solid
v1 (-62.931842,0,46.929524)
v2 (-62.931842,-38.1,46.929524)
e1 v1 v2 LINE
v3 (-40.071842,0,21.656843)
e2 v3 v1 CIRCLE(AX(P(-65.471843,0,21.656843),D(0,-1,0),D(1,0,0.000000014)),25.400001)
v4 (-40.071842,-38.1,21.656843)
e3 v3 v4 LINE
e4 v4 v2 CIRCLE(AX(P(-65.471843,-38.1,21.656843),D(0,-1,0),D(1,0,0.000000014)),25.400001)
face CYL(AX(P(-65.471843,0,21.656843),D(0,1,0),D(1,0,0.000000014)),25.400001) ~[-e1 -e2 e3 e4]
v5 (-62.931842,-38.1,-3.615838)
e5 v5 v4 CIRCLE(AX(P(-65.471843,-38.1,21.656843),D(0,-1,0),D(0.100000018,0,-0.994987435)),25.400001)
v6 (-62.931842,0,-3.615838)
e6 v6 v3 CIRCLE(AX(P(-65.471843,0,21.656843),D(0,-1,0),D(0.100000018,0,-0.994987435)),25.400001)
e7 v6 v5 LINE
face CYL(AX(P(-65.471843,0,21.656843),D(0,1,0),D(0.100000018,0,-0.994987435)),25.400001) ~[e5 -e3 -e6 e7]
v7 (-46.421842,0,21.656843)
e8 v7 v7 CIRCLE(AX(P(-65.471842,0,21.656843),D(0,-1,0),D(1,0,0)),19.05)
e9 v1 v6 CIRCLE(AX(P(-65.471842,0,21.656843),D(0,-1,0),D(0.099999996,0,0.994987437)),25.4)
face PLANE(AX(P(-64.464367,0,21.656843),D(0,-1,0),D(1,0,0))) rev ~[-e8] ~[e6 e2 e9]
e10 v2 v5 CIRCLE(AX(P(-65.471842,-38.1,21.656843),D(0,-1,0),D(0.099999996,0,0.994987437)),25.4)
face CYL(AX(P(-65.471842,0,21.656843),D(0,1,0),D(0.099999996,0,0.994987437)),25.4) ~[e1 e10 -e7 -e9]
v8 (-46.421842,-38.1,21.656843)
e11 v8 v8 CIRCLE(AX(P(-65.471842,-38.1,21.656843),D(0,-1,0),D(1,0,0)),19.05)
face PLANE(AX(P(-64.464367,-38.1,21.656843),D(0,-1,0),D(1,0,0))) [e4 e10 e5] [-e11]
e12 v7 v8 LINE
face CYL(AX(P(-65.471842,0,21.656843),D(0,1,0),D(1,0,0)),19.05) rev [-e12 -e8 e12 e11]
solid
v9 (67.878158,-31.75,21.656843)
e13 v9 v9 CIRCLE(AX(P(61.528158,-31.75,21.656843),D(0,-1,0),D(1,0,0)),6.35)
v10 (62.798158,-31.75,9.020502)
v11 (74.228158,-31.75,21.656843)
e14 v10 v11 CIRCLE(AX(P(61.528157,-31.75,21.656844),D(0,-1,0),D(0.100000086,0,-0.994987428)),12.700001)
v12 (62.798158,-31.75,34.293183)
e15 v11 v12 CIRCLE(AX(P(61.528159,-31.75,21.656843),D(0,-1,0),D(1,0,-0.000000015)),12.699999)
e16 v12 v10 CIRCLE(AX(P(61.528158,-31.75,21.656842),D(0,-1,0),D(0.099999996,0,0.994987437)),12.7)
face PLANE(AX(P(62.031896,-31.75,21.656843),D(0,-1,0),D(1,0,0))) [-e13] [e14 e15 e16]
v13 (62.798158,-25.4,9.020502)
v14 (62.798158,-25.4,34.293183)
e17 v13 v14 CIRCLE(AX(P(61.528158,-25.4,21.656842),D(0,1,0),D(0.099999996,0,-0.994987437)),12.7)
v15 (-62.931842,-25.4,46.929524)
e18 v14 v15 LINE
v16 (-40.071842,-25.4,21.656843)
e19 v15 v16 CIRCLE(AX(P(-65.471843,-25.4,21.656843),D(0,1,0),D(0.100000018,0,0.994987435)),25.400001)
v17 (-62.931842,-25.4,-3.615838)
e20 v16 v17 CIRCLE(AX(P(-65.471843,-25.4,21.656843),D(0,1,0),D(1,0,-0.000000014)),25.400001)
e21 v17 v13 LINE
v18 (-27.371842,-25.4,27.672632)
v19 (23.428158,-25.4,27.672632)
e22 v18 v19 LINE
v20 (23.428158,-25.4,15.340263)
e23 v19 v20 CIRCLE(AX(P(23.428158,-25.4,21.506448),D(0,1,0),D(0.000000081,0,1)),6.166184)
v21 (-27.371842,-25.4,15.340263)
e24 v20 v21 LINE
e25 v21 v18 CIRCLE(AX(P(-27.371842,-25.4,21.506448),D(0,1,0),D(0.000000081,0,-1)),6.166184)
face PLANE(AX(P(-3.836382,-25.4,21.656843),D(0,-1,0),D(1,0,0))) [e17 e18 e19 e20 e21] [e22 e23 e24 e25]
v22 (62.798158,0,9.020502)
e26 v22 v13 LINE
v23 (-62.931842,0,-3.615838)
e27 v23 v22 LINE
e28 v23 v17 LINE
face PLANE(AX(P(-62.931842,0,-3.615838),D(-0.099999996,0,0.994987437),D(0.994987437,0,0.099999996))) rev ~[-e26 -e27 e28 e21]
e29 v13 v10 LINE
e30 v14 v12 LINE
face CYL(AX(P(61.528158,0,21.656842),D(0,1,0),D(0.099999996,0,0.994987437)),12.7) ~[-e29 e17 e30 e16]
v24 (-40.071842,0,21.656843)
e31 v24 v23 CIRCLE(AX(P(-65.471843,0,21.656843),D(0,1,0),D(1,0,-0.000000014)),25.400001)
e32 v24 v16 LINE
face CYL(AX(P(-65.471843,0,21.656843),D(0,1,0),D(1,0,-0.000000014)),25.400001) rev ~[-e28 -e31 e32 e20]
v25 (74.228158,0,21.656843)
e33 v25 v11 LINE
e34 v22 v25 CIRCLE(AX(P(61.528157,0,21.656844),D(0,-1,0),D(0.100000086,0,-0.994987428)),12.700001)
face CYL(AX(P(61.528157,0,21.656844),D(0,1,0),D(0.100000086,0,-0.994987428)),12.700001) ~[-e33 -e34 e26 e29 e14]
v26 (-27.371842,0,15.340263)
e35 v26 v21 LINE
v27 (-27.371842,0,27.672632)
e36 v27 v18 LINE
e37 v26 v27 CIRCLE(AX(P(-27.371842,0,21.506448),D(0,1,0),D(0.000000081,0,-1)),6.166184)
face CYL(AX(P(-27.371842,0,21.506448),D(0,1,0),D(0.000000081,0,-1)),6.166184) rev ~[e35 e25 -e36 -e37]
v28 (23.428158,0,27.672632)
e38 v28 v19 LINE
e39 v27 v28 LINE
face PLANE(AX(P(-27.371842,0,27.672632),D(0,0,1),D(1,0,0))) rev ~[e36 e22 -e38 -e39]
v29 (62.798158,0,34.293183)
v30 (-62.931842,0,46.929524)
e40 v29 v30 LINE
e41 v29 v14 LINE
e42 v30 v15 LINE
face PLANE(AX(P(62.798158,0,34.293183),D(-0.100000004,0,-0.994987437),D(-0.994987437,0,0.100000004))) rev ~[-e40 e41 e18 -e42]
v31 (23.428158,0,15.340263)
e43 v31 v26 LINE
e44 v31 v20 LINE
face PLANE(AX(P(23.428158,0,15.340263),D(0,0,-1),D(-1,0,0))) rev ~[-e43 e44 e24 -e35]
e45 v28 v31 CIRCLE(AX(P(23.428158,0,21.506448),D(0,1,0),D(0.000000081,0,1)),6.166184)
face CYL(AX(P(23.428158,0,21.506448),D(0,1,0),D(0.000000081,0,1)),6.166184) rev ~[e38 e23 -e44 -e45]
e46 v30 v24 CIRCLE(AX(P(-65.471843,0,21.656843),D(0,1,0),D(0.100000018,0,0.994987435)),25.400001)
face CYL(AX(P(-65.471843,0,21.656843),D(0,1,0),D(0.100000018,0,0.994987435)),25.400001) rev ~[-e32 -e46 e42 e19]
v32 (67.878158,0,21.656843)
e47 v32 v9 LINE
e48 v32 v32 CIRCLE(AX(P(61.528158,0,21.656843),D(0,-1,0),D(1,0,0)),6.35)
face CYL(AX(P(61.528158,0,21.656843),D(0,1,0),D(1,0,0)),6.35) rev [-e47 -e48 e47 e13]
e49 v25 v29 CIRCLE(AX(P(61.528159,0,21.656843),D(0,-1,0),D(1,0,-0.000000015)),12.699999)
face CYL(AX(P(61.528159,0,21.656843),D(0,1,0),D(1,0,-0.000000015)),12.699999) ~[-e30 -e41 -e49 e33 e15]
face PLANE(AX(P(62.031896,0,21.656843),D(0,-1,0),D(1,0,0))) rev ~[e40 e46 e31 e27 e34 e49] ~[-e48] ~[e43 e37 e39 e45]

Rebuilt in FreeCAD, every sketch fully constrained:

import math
import FreeCAD as App
import Part
import Sketcher
from FreeCAD import Vector
Q = App.Units.Quantity

doc = App.newDocument("Part")
body = doc.addObject("PartDesign::Body", "Body")

# Sketch on XZ plane
sketch1 = body.newObject("Sketcher::SketchObject", "Sketch")
sketch1.AttachmentSupport = (doc.getObject("XZ_Plane"), [""])
sketch1.MapMode = "FlatFace"
sketch1.addGeometry([
    Part.ArcOfCircle(Part.Circle(Vector(-65, 22, 0), Vector(0, 0, 1), 25), math.radians(-84), math.radians(0)),
    Part.ArcOfCircle(Part.Circle(Vector(-65, 22, 0), Vector(0, 0, 1), 25), math.radians(0), math.radians(84)),
    Part.ArcOfCircle(Part.Circle(Vector(-65, 22, 0), Vector(0, 0, 1), 25), math.radians(84), math.radians(276)),
    Part.Circle(Vector(-65, 22, 0), Vector(0, 0, 1), 19),
], False)
sketch1.addConstraint([
    Sketcher.Constraint("Tangent", 0, 2, 1, 1),
    Sketcher.Constraint("Tangent", 1, 2, 2, 1),
    Sketcher.Constraint("Tangent", 2, 2, 0, 1),
    Sketcher.Constraint("Coincident", 3, 3, 0, 3),
    Sketcher.Constraint("Horizontal", 3, 3, 0, 2),
    Sketcher.Constraint("Vertical", 1, 2, 2, 2),
    Sketcher.Constraint("Radius", 0, Q("1 in")),
    Sketcher.Constraint("Diameter", 3, Q("1.5 in")),
    Sketcher.Constraint("DistanceX", 0, 3, 1, 2, Q("0.1 in")),
    Sketcher.Constraint("DistanceX", 2, 3, -1, 1, 65.471842),
    Sketcher.Constraint("DistanceY", -1, 1, 0, 3, 21.656843),
])
pad1 = body.newObject("PartDesign::Pad", "Pad")
pad1.Profile = sketch1
pad1.Length = Q("1.5 in")
body2 = doc.addObject("PartDesign::Body", "Body001")

# Sketch on XZ plane
sketch2 = body2.newObject("Sketcher::SketchObject", "Sketch001")
sketch2.AttachmentSupport = (doc.getObject("XZ_Plane001"), [""])
sketch2.MapMode = "FlatFace"
sketch2.addGeometry([
    Part.ArcOfCircle(Part.Circle(Vector(-65, 22, 0), Vector(0, 0, 1), 25), math.radians(0), math.radians(84)),  # 0
    Part.ArcOfCircle(Part.Circle(Vector(-65, 22, 0), Vector(0, 0, 1), 25), math.radians(-84), math.radians(0)),  # 1
    Part.LineSegment(Vector(-63, -4, 0), Vector(63, 9, 0)),  # 2
    Part.ArcOfCircle(Part.Circle(Vector(62, 22, 0), Vector(0, 0, 1), 13), math.radians(84), math.radians(276)),  # 3
    Part.LineSegment(Vector(63, 34, 0), Vector(-63, 47, 0)),  # 4
    Part.LineSegment(Vector(23, 15, 0), Vector(-27, 15, 0)),  # 5
    Part.ArcOfCircle(Part.Circle(Vector(-27, 22, 0), Vector(0, 0, 1), 6), math.radians(90), math.radians(270)),  # 6
    Part.LineSegment(Vector(-27, 28, 0), Vector(23, 28, 0)),  # 7
    Part.ArcOfCircle(Part.Circle(Vector(23, 22, 0), Vector(0, 0, 1), 6), math.radians(-90), math.radians(90)),  # 8
], False)
sketch2.addConstraint([
    Sketcher.Constraint("Tangent", 0, 1, 1, 2),
    Sketcher.Constraint("Tangent", 1, 1, 2, 1),
    Sketcher.Constraint("Tangent", 2, 2, 3, 2),
    Sketcher.Constraint("Tangent", 3, 1, 4, 1),
    Sketcher.Constraint("Tangent", 4, 2, 0, 2),
    Sketcher.Constraint("Tangent", 5, 2, 6, 2),
    Sketcher.Constraint("Tangent", 6, 1, 7, 1),
    Sketcher.Constraint("Tangent", 7, 2, 8, 2),
    Sketcher.Constraint("Tangent", 8, 1, 5, 1),
    Sketcher.Constraint("Horizontal", 5),
    Sketcher.Constraint("Horizontal", 7),
    Sketcher.Constraint("Equal", 0, 1),
    Sketcher.Constraint("Horizontal", 1, 3, 3, 3),
    Sketcher.Constraint("Horizontal", 3, 3, 0, 1),
    Sketcher.Constraint("Radius", 0, Q("1 in")),
    Sketcher.Constraint("Radius", 3, Q("0.5 in")),
    Sketcher.Constraint("DistanceX", 5, 2, 5, 1, Q("2 in")),
    Sketcher.Constraint("DistanceX", 0, 3, 3, 3, Q("5 in")),
    Sketcher.Constraint("DistanceX", 0, 3, 6, 3, Q("1.5 in")),
    Sketcher.Constraint("Radius", 6, 6.166184),
    Sketcher.Constraint("DistanceY", 1, 1, 5, 2, 18.956101),
    Sketcher.Constraint("DistanceX", -1, 1, 3, 3, 61.528158),
    Sketcher.Constraint("DistanceY", -1, 1, 6, 1, 27.672632),
])
pad2 = body2.newObject("PartDesign::Pad", "Pad001")
pad2.Profile = sketch2
pad2.Length = Q("1 in")

# Sketch on XZ plane
sketch3 = body2.newObject("Sketcher::SketchObject", "Sketch002")
sketch3.AttachmentSupport = (doc.getObject("XZ_Plane001"), [""])
sketch3.MapMode = "FlatFace"
sketch3.addGeometry([
    Part.ArcOfCircle(Part.Circle(Vector(62, 22, 0), Vector(0, 0, 1), 13), math.radians(0), math.radians(84)),
    Part.ArcOfCircle(Part.Circle(Vector(62, 22, 0), Vector(0, 0, 1), 13), math.radians(84), math.radians(276)),
    Part.ArcOfCircle(Part.Circle(Vector(62, 22, 0), Vector(0, 0, 1), 13), math.radians(-84), math.radians(0)),
    Part.Circle(Vector(62, 22, 0), Vector(0, 0, 1), 6),
], False)
sketch3.addConstraint([
    Sketcher.Constraint("Tangent", 0, 2, 1, 1),
    Sketcher.Constraint("Tangent", 1, 2, 2, 1),
    Sketcher.Constraint("Tangent", 2, 2, 0, 1),
    Sketcher.Constraint("Coincident", 3, 3, 0, 3),
    Sketcher.Constraint("Horizontal", 3, 3, 2, 2),
    Sketcher.Constraint("Vertical", 0, 2, 1, 2),
    Sketcher.Constraint("Diameter", 3, Q("0.5 in")),
    Sketcher.Constraint("Radius", 0, Q("0.5 in")),
    Sketcher.Constraint("DistanceX", 2, 3, 0, 2, Q("0.05 in")),
    Sketcher.Constraint("DistanceX", -1, 1, 0, 3, 61.528159),
    Sketcher.Constraint("DistanceY", -1, 1, 0, 3, 21.656843),
])
pad3 = body2.newObject("PartDesign::Pad", "Pad002")
pad3.Profile = sketch3
pad3.Length = Q("1.25 in")

doc.recompute()
